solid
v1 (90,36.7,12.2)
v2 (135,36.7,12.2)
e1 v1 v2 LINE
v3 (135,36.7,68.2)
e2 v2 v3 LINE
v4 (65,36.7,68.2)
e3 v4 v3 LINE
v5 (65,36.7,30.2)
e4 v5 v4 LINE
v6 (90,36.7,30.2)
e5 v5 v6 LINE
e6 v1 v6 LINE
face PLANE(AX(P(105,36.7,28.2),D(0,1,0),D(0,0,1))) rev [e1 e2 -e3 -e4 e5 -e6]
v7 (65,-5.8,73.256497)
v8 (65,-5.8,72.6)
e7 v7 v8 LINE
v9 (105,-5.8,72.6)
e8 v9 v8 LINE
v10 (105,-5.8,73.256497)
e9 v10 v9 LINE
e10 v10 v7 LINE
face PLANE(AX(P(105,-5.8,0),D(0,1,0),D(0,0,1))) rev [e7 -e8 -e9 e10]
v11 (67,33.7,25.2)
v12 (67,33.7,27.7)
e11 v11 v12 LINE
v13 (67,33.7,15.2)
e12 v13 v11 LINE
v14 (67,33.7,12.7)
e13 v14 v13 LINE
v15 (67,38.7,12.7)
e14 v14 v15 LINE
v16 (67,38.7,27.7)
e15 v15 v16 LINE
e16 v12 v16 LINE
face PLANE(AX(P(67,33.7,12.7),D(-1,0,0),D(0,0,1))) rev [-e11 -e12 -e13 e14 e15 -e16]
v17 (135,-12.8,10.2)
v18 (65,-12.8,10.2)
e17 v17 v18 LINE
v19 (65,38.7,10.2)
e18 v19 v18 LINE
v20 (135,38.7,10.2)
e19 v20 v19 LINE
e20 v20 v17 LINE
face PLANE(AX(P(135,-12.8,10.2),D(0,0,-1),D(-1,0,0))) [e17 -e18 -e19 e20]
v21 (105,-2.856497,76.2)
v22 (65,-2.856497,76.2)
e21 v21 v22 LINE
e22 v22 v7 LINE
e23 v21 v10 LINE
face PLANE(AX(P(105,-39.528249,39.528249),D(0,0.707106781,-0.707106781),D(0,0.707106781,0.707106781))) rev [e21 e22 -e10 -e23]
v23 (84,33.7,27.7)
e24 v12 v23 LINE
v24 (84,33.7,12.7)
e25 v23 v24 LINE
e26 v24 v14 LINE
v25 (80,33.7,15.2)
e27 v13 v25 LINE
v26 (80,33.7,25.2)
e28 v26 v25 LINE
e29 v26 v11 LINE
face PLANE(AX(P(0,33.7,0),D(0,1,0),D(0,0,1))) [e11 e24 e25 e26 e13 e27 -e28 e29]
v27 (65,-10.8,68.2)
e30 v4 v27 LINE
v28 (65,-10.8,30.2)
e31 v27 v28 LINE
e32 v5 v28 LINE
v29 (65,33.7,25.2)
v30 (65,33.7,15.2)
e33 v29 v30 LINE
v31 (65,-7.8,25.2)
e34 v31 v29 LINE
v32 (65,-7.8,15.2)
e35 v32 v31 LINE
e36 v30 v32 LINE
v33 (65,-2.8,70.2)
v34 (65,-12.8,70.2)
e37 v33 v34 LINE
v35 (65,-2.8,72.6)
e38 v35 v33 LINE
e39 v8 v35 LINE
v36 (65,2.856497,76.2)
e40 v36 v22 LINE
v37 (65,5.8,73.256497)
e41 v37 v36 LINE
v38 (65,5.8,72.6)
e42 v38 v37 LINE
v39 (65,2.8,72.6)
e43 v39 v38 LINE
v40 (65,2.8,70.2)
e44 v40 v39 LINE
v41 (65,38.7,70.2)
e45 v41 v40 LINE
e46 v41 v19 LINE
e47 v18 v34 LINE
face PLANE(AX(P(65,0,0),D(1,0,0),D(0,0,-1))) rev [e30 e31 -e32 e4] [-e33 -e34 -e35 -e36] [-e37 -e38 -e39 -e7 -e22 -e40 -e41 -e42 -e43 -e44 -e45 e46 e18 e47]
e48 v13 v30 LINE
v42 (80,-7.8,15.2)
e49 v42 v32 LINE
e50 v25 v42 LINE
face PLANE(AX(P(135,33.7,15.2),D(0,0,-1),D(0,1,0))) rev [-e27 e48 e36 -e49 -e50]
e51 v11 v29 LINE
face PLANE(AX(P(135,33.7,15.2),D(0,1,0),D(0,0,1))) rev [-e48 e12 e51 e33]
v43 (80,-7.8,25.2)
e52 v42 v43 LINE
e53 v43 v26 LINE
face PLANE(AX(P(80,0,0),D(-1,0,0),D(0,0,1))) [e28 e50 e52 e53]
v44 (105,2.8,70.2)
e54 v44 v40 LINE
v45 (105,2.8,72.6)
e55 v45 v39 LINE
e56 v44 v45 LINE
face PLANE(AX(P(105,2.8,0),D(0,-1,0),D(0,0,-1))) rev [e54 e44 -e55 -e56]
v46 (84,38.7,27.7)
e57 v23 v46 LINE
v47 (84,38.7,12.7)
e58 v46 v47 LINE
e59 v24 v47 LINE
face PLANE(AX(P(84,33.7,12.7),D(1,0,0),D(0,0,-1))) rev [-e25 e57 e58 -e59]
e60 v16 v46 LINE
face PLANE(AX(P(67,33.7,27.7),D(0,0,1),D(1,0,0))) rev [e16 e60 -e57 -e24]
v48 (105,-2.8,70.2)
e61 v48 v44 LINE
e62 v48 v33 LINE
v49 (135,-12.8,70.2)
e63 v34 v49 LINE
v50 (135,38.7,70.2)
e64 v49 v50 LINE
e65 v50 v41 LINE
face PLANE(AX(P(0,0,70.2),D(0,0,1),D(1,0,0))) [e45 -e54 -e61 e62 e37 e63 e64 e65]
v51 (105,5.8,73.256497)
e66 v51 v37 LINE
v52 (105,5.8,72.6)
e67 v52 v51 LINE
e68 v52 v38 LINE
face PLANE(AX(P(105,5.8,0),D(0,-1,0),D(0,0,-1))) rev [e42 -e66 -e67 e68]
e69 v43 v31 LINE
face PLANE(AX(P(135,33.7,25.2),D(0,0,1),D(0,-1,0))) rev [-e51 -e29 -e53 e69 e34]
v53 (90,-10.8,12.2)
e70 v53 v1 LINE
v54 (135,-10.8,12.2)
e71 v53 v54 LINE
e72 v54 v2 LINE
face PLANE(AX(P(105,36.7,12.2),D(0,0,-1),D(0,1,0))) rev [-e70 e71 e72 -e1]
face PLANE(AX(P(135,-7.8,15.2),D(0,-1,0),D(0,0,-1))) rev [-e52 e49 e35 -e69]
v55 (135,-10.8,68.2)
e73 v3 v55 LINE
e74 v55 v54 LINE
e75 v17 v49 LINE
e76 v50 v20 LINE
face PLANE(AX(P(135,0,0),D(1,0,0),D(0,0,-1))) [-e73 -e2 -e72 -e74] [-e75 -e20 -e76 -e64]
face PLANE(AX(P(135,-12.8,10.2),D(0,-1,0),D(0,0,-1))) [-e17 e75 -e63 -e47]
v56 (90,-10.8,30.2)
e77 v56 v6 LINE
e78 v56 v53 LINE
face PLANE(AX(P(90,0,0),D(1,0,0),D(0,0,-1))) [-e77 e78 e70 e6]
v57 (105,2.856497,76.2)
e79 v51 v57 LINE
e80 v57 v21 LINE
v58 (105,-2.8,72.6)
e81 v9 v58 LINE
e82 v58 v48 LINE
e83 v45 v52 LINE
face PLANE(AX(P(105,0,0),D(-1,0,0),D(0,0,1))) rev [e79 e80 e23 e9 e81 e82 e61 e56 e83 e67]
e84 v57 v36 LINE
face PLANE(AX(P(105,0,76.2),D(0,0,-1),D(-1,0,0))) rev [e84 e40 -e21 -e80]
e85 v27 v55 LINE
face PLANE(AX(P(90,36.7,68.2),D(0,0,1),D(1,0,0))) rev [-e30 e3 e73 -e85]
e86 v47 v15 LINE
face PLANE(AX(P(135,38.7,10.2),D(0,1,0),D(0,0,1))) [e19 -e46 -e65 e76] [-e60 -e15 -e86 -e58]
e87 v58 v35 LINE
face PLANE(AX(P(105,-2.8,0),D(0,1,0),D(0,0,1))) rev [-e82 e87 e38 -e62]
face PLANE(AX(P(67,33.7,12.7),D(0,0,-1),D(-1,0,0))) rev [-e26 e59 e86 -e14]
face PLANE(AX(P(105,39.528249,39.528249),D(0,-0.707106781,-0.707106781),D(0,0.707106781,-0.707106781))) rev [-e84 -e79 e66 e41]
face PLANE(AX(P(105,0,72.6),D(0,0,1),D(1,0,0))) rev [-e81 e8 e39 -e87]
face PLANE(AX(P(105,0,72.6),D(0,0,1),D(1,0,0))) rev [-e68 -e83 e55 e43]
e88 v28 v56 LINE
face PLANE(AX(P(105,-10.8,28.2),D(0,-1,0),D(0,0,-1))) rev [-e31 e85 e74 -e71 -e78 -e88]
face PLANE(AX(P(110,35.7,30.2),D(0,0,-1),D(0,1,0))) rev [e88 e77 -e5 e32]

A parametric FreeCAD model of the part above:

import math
import FreeCAD as App
import Part
import Sketcher
from FreeCAD import Vector


def add_polygon(sketch, points):
    """Adds a closed chain of lines whose ends are joined by coincident constraints."""
    first, n = sketch.GeometryCount, len(points)
    for a, b in zip(points, points[1:] + points[:1]):
        sketch.addGeometry(Part.LineSegment(App.Vector(*a, 0), App.Vector(*b, 0)), False)
    for i in range(n):
        sketch.addConstraint(Sketcher.Constraint("Coincident", first + i, 2, first + (i + 1) % n, 1))

doc = App.newDocument("Part")
params = doc.addObject("Spreadsheet::Sheet", "Params")
for row, (alias, value) in enumerate([
    ("sketch1_radius", "1 mm"),
    ("sketch1_diameter", "4.2 mm"),
    ("sketch1_width", "6 mm"),
    ("sketch1_width2", "3 mm"),
    ("sketch1_width3", "2 mm"),
    ("pad1_length", "65 mm"),
    ("sketch3_width", "3 mm"),
    ("sketch3_width2", "5.6 mm"),
    ("sketch3_height", "2.4 mm"),
    ("pad2_length", "40 mm"),
    ("sketch4_height", "20 mm"),
    ("sketch4_height2", "10 mm"),
    ("sketch4_width", "51.5 mm"),
    ("sketch4_width2", "41.5 mm"),
    ("pad3_length", "70 mm"),
    ("sketch5_width", "17 mm"),
    ("sketch5_height", "15 mm"),
    ("pocket2_length", "5 mm"),
    ("sketch6_height", "20 mm"),
    ("sketch6_width", "51.5 mm"),
    ("pad4_length", "50 mm"),
    ("sketch7_height", "10 mm"),
    ("sketch7_width", "41.5 mm"),
    ("pad5_length", "5 mm"),
    ("sketch8_height", "16 mm"),
    ("sketch8_width", "47.5 mm"),
    ("pocket3_length", "30 mm"),
    ("sketch9_width", "70 mm"),
    ("sketch9_height", "51.5 mm"),
    ("pad6_length", "40 mm"),
    ("sketch10_width", "3 mm"),
    ("sketch10_width2", "5.6 mm"),
    ("sketch10_height", "2.4 mm"),
    ("pad7_length", "40 mm"),
    ("pocket4_length", "40 mm"),
    ("sketch12_height", "56 mm"),
    ("sketch12_width", "47.5 mm"),
    ("pocket5_length", "45 mm"),
    ("sketch13_height", "37 mm"),
    ("sketch13_width", "45.5 mm"),
    ("pocket6_length", "45 mm"),
    ("sketch14_height", "38 mm"),
    ("sketch14_width", "47.5 mm"),
    ("pocket7_length", "45 mm"),
], start=1):
    params.set(f"A{row}", alias)
    params.set(f"B{row}", "=" + value)
    params.setAlias(f"B{row}", alias)

body = doc.addObject("PartDesign::Body", "Body")

sketch1 = doc.addObject("Sketcher::SketchObject", "Sketch")
body.addObject(sketch1)
sketch1.AttachmentSupport = (doc.YZ_Plane, [""])
sketch1.MapMode = "FlatFace"
sketch1.addGeometry(Part.LineSegment(Vector(9, 10, 0), Vector(3, 10, 0)), False)
sketch1.addGeometry(Part.LineSegment(Vector(3, 10, 0), Vector(3, 8, 0)), False)
sketch1.addGeometry(Part.LineSegment(Vector(3, 8, 0), Vector(6, 8, 0)), False)
sketch1.addGeometry(Part.LineSegment(Vector(6, 8, 0), Vector(6, 7.06066, 0)), False)
sketch1.addGeometry(Part.LineSegment(Vector(6, 7.06066, 0), Vector(2.93934, 4, 0)), False)
sketch1.addGeometry(Part.LineSegment(Vector(2.93934, 4, 0), Vector(-2.93934, 4, 0)), False)
sketch1.addGeometry(Part.LineSegment(Vector(-2.93934, 4, 0), Vector(-6, 7.06066, 0)), False)
sketch1.addGeometry(Part.LineSegment(Vector(-6, 7.06066, 0), Vector(-6, 8, 0)), False)
sketch1.addGeometry(Part.LineSegment(Vector(-6, 8, 0), Vector(-3, 8, 0)), False)
sketch1.addGeometry(Part.LineSegment(Vector(-3, 8, 0), Vector(-3, 10, 0)), False)
sketch1.addGeometry(Part.LineSegment(Vector(-3, 10, 0), Vector(-9, 10, 0)), False)
sketch1.addGeometry(Part.ArcOfCircle(Part.Circle(Vector(-9, 9, 0), Vector(0, 0, 1), 1), math.radians(90), math.radians(180)), False)
sketch1.addGeometry(Part.LineSegment(Vector(-10, 9, 0), Vector(-10, 3, 0)), False)
sketch1.addGeometry(Part.LineSegment(Vector(-10, 3, 0), Vector(-8, 3, 0)), False)
sketch1.addGeometry(Part.LineSegment(Vector(-8, 3, 0), Vector(-8, 6, 0)), False)
sketch1.addGeometry(Part.LineSegment(Vector(-8, 6, 0), Vector(-7.06066, 6, 0)), False)
sketch1.addGeometry(Part.LineSegment(Vector(-7.06066, 6, 0), Vector(-4, 2.93934, 0)), False)
sketch1.addGeometry(Part.LineSegment(Vector(-4, 2.93934, 0), Vector(-4, -2.93934, 0)), False)
sketch1.addGeometry(Part.LineSegment(Vector(-4, -2.93934, 0), Vector(-7.06066, -6, 0)), False)
sketch1.addGeometry(Part.LineSegment(Vector(-7.06066, -6, 0), Vector(-8, -6, 0)), False)
sketch1.addGeometry(Part.LineSegment(Vector(-8, -6, 0), Vector(-8, -3, 0)), False)
sketch1.addGeometry(Part.LineSegment(Vector(-8, -3, 0), Vector(-10, -3, 0)), False)
sketch1.addGeometry(Part.LineSegment(Vector(-10, -3, 0), Vector(-10, -9, 0)), False)
sketch1.addGeometry(Part.ArcOfCircle(Part.Circle(Vector(-9, -9, 0), Vector(0, 0, 1), 1), math.radians(-180), math.radians(-90)), False)
sketch1.addGeometry(Part.LineSegment(Vector(-9, -10, 0), Vector(-3, -10, 0)), False)
sketch1.addGeometry(Part.LineSegment(Vector(-3, -10, 0), Vector(-3, -8, 0)), False)
sketch1.addGeometry(Part.LineSegment(Vector(-3, -8, 0), Vector(-6, -8, 0)), False)
sketch1.addGeometry(Part.LineSegment(Vector(-6, -8, 0), Vector(-6, -7.06066, 0)), False)
sketch1.addGeometry(Part.LineSegment(Vector(-6, -7.06066, 0), Vector(-2.93934, -4, 0)), False)
sketch1.addGeometry(Part.LineSegment(Vector(-2.93934, -4, 0), Vector(2.93934, -4, 0)), False)
sketch1.addGeometry(Part.LineSegment(Vector(2.93934, -4, 0), Vector(6, -7.06066, 0)), False)
sketch1.addGeometry(Part.LineSegment(Vector(6, -7.06066, 0), Vector(6, -8, 0)), False)
sketch1.addGeometry(Part.LineSegment(Vector(6, -8, 0), Vector(3, -8, 0)), False)
sketch1.addGeometry(Part.LineSegment(Vector(3, -8, 0), Vector(3, -10, 0)), False)
sketch1.addGeometry(Part.LineSegment(Vector(3, -10, 0), Vector(9, -10, 0)), False)
sketch1.addGeometry(Part.ArcOfCircle(Part.Circle(Vector(9, -9, 0), Vector(0, 0, 1), 1), math.radians(-90), math.radians(0)), False)
sketch1.addGeometry(Part.LineSegment(Vector(10, -9, 0), Vector(10, -3, 0)), False)
sketch1.addGeometry(Part.LineSegment(Vector(10, -3, 0), Vector(8, -3, 0)), False)
sketch1.addGeometry(Part.LineSegment(Vector(8, -3, 0), Vector(8, -6, 0)), False)
sketch1.addGeometry(Part.LineSegment(Vector(8, -6, 0), Vector(7.06066, -6, 0)), False)
sketch1.addGeometry(Part.LineSegment(Vector(7.06066, -6, 0), Vector(4, -2.93934, 0)), False)
sketch1.addGeometry(Part.LineSegment(Vector(4, -2.93934, 0), Vector(4, 2.93934, 0)), False)
sketch1.addGeometry(Part.LineSegment(Vector(4, 2.93934, 0), Vector(7.06066, 6, 0)), False)
sketch1.addGeometry(Part.LineSegment(Vector(7.06066, 6, 0), Vector(8, 6, 0)), False)
sketch1.addGeometry(Part.LineSegment(Vector(8, 6, 0), Vector(8, 3, 0)), False)
sketch1.addGeometry(Part.LineSegment(Vector(8, 3, 0), Vector(10, 3, 0)), False)
sketch1.addGeometry(Part.LineSegment(Vector(10, 3, 0), Vector(10, 9, 0)), False)
sketch1.addGeometry(Part.ArcOfCircle(Part.Circle(Vector(9, 9, 0), Vector(0, 0, 1), 1), math.radians(0), math.radians(90)), False)
sketch1.addGeometry(Part.Circle(Vector(0, 0, 0), Vector(0, 0, 1), 2.1), False)
sketch1.addConstraint(Sketcher.Constraint("Coincident", 0, 2, 1, 1))
sketch1.addConstraint(Sketcher.Constraint("Coincident", 1, 2, 2, 1))
sketch1.addConstraint(Sketcher.Constraint("Coincident", 2, 2, 3, 1))
sketch1.addConstraint(Sketcher.Constraint("Coincident", 3, 2, 4, 1))
sketch1.addConstraint(Sketcher.Constraint("Coincident", 4, 2, 5, 1))
sketch1.addConstraint(Sketcher.Constraint("Coincident", 5, 2, 6, 1))
sketch1.addConstraint(Sketcher.Constraint("Coincident", 6, 2, 7, 1))
sketch1.addConstraint(Sketcher.Constraint("Coincident", 7, 2, 8, 1))
sketch1.addConstraint(Sketcher.Constraint("Coincident", 8, 2, 9, 1))
sketch1.addConstraint(Sketcher.Constraint("Coincident", 9, 2, 10, 1))
sketch1.addConstraint(Sketcher.Constraint("Tangent", 10, 2, 11, 1))
sketch1.addConstraint(Sketcher.Constraint("Tangent", 11, 2, 12, 1))
sketch1.addConstraint(Sketcher.Constraint("Coincident", 12, 2, 13, 1))
sketch1.addConstraint(Sketcher.Constraint("Coincident", 13, 2, 14, 1))
sketch1.addConstraint(Sketcher.Constraint("Coincident", 14, 2, 15, 1))
sketch1.addConstraint(Sketcher.Constraint("Coincident", 15, 2, 16, 1))
sketch1.addConstraint(Sketcher.Constraint("Coincident", 16, 2, 17, 1))
sketch1.addConstraint(Sketcher.Constraint("Coincident", 17, 2, 18, 1))
sketch1.addConstraint(Sketcher.Constraint("Coincident", 18, 2, 19, 1))
sketch1.addConstraint(Sketcher.Constraint("Coincident", 19, 2, 20, 1))
sketch1.addConstraint(Sketcher.Constraint("Coincident", 20, 2, 21, 1))
sketch1.addConstraint(Sketcher.Constraint("Coincident", 21, 2, 22, 1))
sketch1.addConstraint(Sketcher.Constraint("Tangent", 22, 2, 23, 1))
sketch1.addConstraint(Sketcher.Constraint("Tangent", 23, 2, 24, 1))
sketch1.addConstraint(Sketcher.Constraint("Coincident", 24, 2, 25, 1))
sketch1.addConstraint(Sketcher.Constraint("Coincident", 25, 2, 26, 1))
sketch1.addConstraint(Sketcher.Constraint("Coincident", 26, 2, 27, 1))
sketch1.addConstraint(Sketcher.Constraint("Coincident", 27, 2, 28, 1))
sketch1.addConstraint(Sketcher.Constraint("Coincident", 28, 2, 29, 1))
sketch1.addConstraint(Sketcher.Constraint("Coincident", 29, 2, 30, 1))
sketch1.addConstraint(Sketcher.Constraint("Coincident", 30, 2, 31, 1))
sketch1.addConstraint(Sketcher.Constraint("Coincident", 31, 2, 32, 1))
sketch1.addConstraint(Sketcher.Constraint("Coincident", 32, 2, 33, 1))
sketch1.addConstraint(Sketcher.Constraint("Coincident", 33, 2, 34, 1))
sketch1.addConstraint(Sketcher.Constraint("Tangent", 34, 2, 35, 1))
sketch1.addConstraint(Sketcher.Constraint("Tangent", 35, 2, 36, 1))
sketch1.addConstraint(Sketcher.Constraint("Coincident", 36, 2, 37, 1))
sketch1.addConstraint(Sketcher.Constraint("Coincident", 37, 2, 38, 1))
sketch1.addConstraint(Sketcher.Constraint("Coincident", 38, 2, 39, 1))
sketch1.addConstraint(Sketcher.Constraint("Coincident", 39, 2, 40, 1))
sketch1.addConstraint(Sketcher.Constraint("Coincident", 40, 2, 41, 1))
sketch1.addConstraint(Sketcher.Constraint("Coincident", 41, 2, 42, 1))
sketch1.addConstraint(Sketcher.Constraint("Coincident", 42, 2, 43, 1))
sketch1.addConstraint(Sketcher.Constraint("Coincident", 43, 2, 44, 1))
sketch1.addConstraint(Sketcher.Constraint("Coincident", 44, 2, 45, 1))
sketch1.addConstraint(Sketcher.Constraint("Coincident", 45, 2, 46, 1))
sketch1.addConstraint(Sketcher.Constraint("Tangent", 46, 2, 47, 1))
sketch1.addConstraint(Sketcher.Constraint("Tangent", 47, 2, 0, 1))
sketch1.addConstraint(Sketcher.Constraint("Horizontal", 0))
sketch1.addConstraint(Sketcher.Constraint("Vertical", 1))
sketch1.addConstraint(Sketcher.Constraint("Horizontal", 2))
sketch1.addConstraint(Sketcher.Constraint("Vertical", 3))
sketch1.addConstraint(Sketcher.Constraint("Horizontal", 5))
sketch1.addConstraint(Sketcher.Constraint("Vertical", 7))
sketch1.addConstraint(Sketcher.Constraint("Horizontal", 8))
sketch1.addConstraint(Sketcher.Constraint("Vertical", 9))
sketch1.addConstraint(Sketcher.Constraint("Horizontal", 10))
sketch1.addConstraint(Sketcher.Constraint("Vertical", 12))
sketch1.addConstraint(Sketcher.Constraint("Horizontal", 13))
sketch1.addConstraint(Sketcher.Constraint("Vertical", 14))
sketch1.addConstraint(Sketcher.Constraint("Horizontal", 15))
sketch1.addConstraint(Sketcher.Constraint("Vertical", 17))
sketch1.addConstraint(Sketcher.Constraint("Horizontal", 19))
sketch1.addConstraint(Sketcher.Constraint("Vertical", 20))
sketch1.addConstraint(Sketcher.Constraint("Horizontal", 21))
sketch1.addConstraint(Sketcher.Constraint("Vertical", 22))
sketch1.addConstraint(Sketcher.Constraint("Horizontal", 24))
sketch1.addConstraint(Sketcher.Constraint("Vertical", 25))
sketch1.addConstraint(Sketcher.Constraint("Horizontal", 26))
sketch1.addConstraint(Sketcher.Constraint("Vertical", 27))
sketch1.addConstraint(Sketcher.Constraint("Horizontal", 29))
sketch1.addConstraint(Sketcher.Constraint("Vertical", 31))
sketch1.addConstraint(Sketcher.Constraint("Horizontal", 32))
sketch1.addConstraint(Sketcher.Constraint("Vertical", 33))
sketch1.addConstraint(Sketcher.Constraint("Horizontal", 34))
sketch1.addConstraint(Sketcher.Constraint("Vertical", 36))
sketch1.addConstraint(Sketcher.Constraint("Horizontal", 37))
sketch1.addConstraint(Sketcher.Constraint("Vertical", 38))
sketch1.addConstraint(Sketcher.Constraint("Horizontal", 39))
sketch1.addConstraint(Sketcher.Constraint("Vertical", 41))
sketch1.addConstraint(Sketcher.Constraint("Horizontal", 43))
sketch1.addConstraint(Sketcher.Constraint("Vertical", 44))
sketch1.addConstraint(Sketcher.Constraint("Horizontal", 45))
sketch1.addConstraint(Sketcher.Constraint("Vertical", 46))
sketch1.addConstraint(Sketcher.Constraint("Coincident", 48, 3, -1, 1))
sketch1.addConstraint(Sketcher.Constraint("Equal", 11, 23))
sketch1.addConstraint(Sketcher.Constraint("Equal", 23, 35))
sketch1.addConstraint(Sketcher.Constraint("Equal", 35, 47))
sketch1.addConstraint(Sketcher.Constraint("Symmetric", 11, 3, 35, 3, -1, 1))
sketch1.addConstraint(Sketcher.Constraint("Symmetric", 23, 3, 47, 3, -1, 1))
sketch1.addConstraint(Sketcher.Constraint("Symmetric", 1, 2, 25, 2, -1, 1))
sketch1.addConstraint(Sketcher.Constraint("Symmetric", 3, 2, 27, 2, -1, 1))
sketch1.addConstraint(Sketcher.Constraint("Symmetric", 4, 2, 28, 2, -1, 1))
sketch1.addConstraint(Sketcher.Constraint("Symmetric", 6, 2, 30, 2, -1, 1))
sketch1.addConstraint(Sketcher.Constraint("Symmetric", 8, 2, 32, 2, -1, 1))
sketch1.addConstraint(Sketcher.Constraint("Symmetric", 13, 2, 37, 2, -1, 1))
sketch1.addConstraint(Sketcher.Constraint("Symmetric", 15, 2, 39, 2, -1, 1))
sketch1.addConstraint(Sketcher.Constraint("Symmetric", 16, 2, 40, 2, -1, 1))
sketch1.addConstraint(Sketcher.Constraint("Symmetric", 18, 2, 42, 2, -1, 1))
sketch1.addConstraint(Sketcher.Constraint("Symmetric", 20, 2, 44, 2, -1, 1))
sketch1.addConstraint(Sketcher.Constraint("Symmetric", 23, 3, 35, 3, -2))
sketch1.addConstraint(Sketcher.Constraint("Symmetric", 3, 2, 6, 2, -2))
sketch1.addConstraint(Sketcher.Constraint("Symmetric", 1, 2, 8, 2, -2))
sketch1.addConstraint(Sketcher.Constraint("Symmetric", 20, 2, 37, 2, -2))
sketch1.addConstraint(Sketcher.Constraint("Symmetric", 18, 2, 39, 2, -2))
sketch1.addConstraint(Sketcher.Constraint("Perpendicular", 4, 6))
sketch1.addConstraint(Sketcher.Constraint("Parallel", 6, 16))
sketch1.addConstraint(Sketcher.Constraint("Perpendicular", 16, 18))
sketch1.addConstraint(Sketcher.Constraint("Perpendicular", 28, 30))
sketch1.addConstraint(Sketcher.Constraint("Perpendicular", 40, 42))
sketch1.addConstraint(Sketcher.Constraint("Horizontal", 17, 2, 40, 2))
sketch1.addConstraint(Sketcher.Constraint("Equal", 45, 1))
sketch1.addConstraint(Sketcher.Constraint("Equal", 43, 3))
sketch1.addConstraint(Sketcher.Constraint("Equal", 34, 12))
sketch1.addConstraint(Sketcher.Constraint("Equal", 32, 14))
sketch1.addConstraint(Sketcher.Constraint("Equal", 29, 17))
sketch1.addConstraint(Sketcher.Constraint("Equal", 6, 16))
sketch1.addConstraint(Sketcher.Constraint("Radius", 11, 1.0))
sketch1.addConstraint(Sketcher.Constraint("Diameter", 48, 4.2))
sketch1.addConstraint(Sketcher.Constraint("DistanceX", 0, 2, 0, 1, 6.0))
sketch1.addConstraint(Sketcher.Constraint("DistanceX", 2, 1, 2, 2, 3.0))
sketch1.addConstraint(Sketcher.Constraint("DistanceX", 13, 1, 13, 2, 2.0))
sketch1.addConstraint(Sketcher.Constraint("DistanceX", 11, 3, -1, 1, 9.0))
sketch1.addConstraint(Sketcher.Constraint("DistanceY", -1, 1, 4, 2, 4.0))
sketch1.addConstraint(Sketcher.Constraint("DistanceX", 5, 2, 5, 1, 5.87868))
sketch1.setExpression("Constraints[117]", "Params.sketch1_radius")
sketch1.setExpression("Constraints[118]", "Params.sketch1_diameter")
sketch1.setExpression("Constraints[119]", "Params.sketch1_width")
sketch1.setExpression("Constraints[120]", "Params.sketch1_width2")
sketch1.setExpression("Constraints[121]", "Params.sketch1_width3")
pad1 = doc.addObject("PartDesign::Pad", "Pad")
body.addObject(pad1)
pad1.Profile = sketch1
pad1.setExpression("Length", "Params.pad1_length")

sketch2 = doc.addObject("Sketcher::SketchObject", "Sketch001")
body.addObject(sketch2)
sketch2.AttachmentSupport = (doc.YZ_Plane, [""])
sketch2.MapMode = "FlatFace"
sketch2.AttachmentOffset = App.Placement(Vector(0, 0, 65), App.Rotation())
add_polygon(sketch2, [(10.51567, 10.787122), (-11.001449, 10.787122), (-11.001449, -10.958599), (10.51567, -10.958599)])
sketch2.addConstraint(Sketcher.Constraint("Horizontal", 0))
sketch2.addConstraint(Sketcher.Constraint("Vertical", 1))
sketch2.addConstraint(Sketcher.Constraint("Horizontal", 2))
sketch2.addConstraint(Sketcher.Constraint("Vertical", 3))
sketch2.addConstraint(Sketcher.Constraint("DistanceX", 0, 2, 0, 1, 21.517119))
sketch2.addConstraint(Sketcher.Constraint("DistanceY", 1, 2, 1, 1, 21.745721))
sketch2.addConstraint(Sketcher.Constraint("DistanceY", 1, 2, -1, 1, 10.958599))
sketch2.addConstraint(Sketcher.Constraint("DistanceX", 0, 2, -1, 1, 11.001449))
pocket1 = doc.addObject("PartDesign::Pocket", "Pocket")
body.addObject(pocket1)
pocket1.Profile = sketch2
pocket1.Type = "ThroughAll"
body2 = doc.addObject("PartDesign::Body", "Body001")

sketch3 = doc.addObject("Sketcher::SketchObject", "Sketch002")
body2.addObject(sketch3)
sketch3.AttachmentSupport = (doc.getObject("YZ_Plane001"), [""])
sketch3.MapMode = "FlatFace"
sketch3.AttachmentOffset = App.Placement(Vector(0, 0, 65), App.Rotation())
add_polygon(sketch3, [(2.8, 10.2), (-2.8, 10.2), (-2.8, 7.8), (-5.8, 7.8), (-5.8, 7.143503), (-2.856497, 4.2), (2.856497, 4.2), (5.8, 7.143503), (5.8, 7.8), (2.8, 7.8)])
sketch3.addConstraint(Sketcher.Constraint("Horizontal", 0))
sketch3.addConstraint(Sketcher.Constraint("Vertical", 1))
sketch3.addConstraint(Sketcher.Constraint("Horizontal", 2))
sketch3.addConstraint(Sketcher.Constraint("Vertical", 3))
sketch3.addConstraint(Sketcher.Constraint("Horizontal", 5))
sketch3.addConstraint(Sketcher.Constraint("Vertical", 7))
sketch3.addConstraint(Sketcher.Constraint("Horizontal", 8))
sketch3.addConstraint(Sketcher.Constraint("Vertical", 9))
sketch3.addConstraint(Sketcher.Constraint("Symmetric", 3, 2, 6, 2, -2))
sketch3.addConstraint(Sketcher.Constraint("Symmetric", 1, 2, 8, 2, -2))
sketch3.addConstraint(Sketcher.Constraint("Perpendicular", 4, 6))
sketch3.addConstraint(Sketcher.Constraint("Equal", 4, 6))
sketch3.addConstraint(Sketcher.Constraint("DistanceX", 2, 2, 2, 1, 3.0))
sketch3.addConstraint(Sketcher.Constraint("DistanceX", 0, 2, 0, 1, 5.6))
sketch3.addConstraint(Sketcher.Constraint("DistanceY", 1, 2, 1, 1, 2.4))
sketch3.addConstraint(Sketcher.Constraint("DistanceY", 4, 2, 0, 2, 6.0))
sketch3.addConstraint(Sketcher.Constraint("DistanceY", -1, 1, 0, 2, 10.2))
sketch3.addConstraint(Sketcher.Constraint("Distance", 4, 4.162742))
sketch3.setExpression("Constraints[22]", "Params.sketch3_width")
sketch3.setExpression("Constraints[23]", "Params.sketch3_width2")
sketch3.setExpression("Constraints[24]", "Params.sketch3_height")
pad2 = doc.addObject("PartDesign::Pad", "Pad001")
body2.addObject(pad2)
pad2.Profile = sketch3
pad2.setExpression("Length", "Params.pad2_length")

sketch4 = doc.addObject("Sketcher::SketchObject", "Sketch003")
body2.addObject(sketch4)
sketch4.AttachmentSupport = (doc.getObject("YZ_Plane001"), [""])
sketch4.MapMode = "FlatFace"
sketch4.AttachmentOffset = App.Placement(Vector(0, 0, 65), App.Rotation())
add_polygon(sketch4, [(38.7, 10.2), (-12.8, 10.2), (-12.8, 30.2), (38.7, 30.2)])
add_polygon(sketch4, [(-7.8, 25.2), (-7.8, 15.2), (33.7, 15.2), (33.7, 25.2)])
sketch4.addConstraint(Sketcher.Constraint("Horizontal", 0))
sketch4.addConstraint(Sketcher.Constraint("Vertical", 1))
sketch4.addConstraint(Sketcher.Constraint("Horizontal", 2))
sketch4.addConstraint(Sketcher.Constraint("Vertical", 3))
sketch4.addConstraint(Sketcher.Constraint("Vertical", 4))
sketch4.addConstraint(Sketcher.Constraint("Horizontal", 5))
sketch4.addConstraint(Sketcher.Constraint("Vertical", 6))
sketch4.addConstraint(Sketcher.Constraint("Horizontal", 7))
sketch4.addConstraint(Sketcher.Constraint("DistanceY", 1, 1, 1, 2, 20.0))
sketch4.addConstraint(Sketcher.Constraint("DistanceY", 4, 2, 4, 1, 10.0))
sketch4.addConstraint(Sketcher.Constraint("DistanceX", 0, 2, 0, 1, 51.5))
sketch4.addConstraint(Sketcher.Constraint("DistanceX", 5, 1, 5, 2, 41.5))
sketch4.addConstraint(Sketcher.Constraint("DistanceX", 0, 2, 4, 2, 5.0))
sketch4.addConstraint(Sketcher.Constraint("DistanceY", 0, 2, 4, 2, 5.0))
sketch4.addConstraint(Sketcher.Constraint("DistanceX", 0, 2, -1, 1, 12.8))
sketch4.addConstraint(Sketcher.Constraint("DistanceY", -1, 1, 0, 2, 10.2))
sketch4.setExpression("Constraints[16]", "Params.sketch4_height")
sketch4.setExpression("Constraints[17]", "Params.sketch4_height2")
sketch4.setExpression("Constraints[18]", "Params.sketch4_width")
sketch4.setExpression("Constraints[19]", "Params.sketch4_width2")
pad3 = doc.addObject("PartDesign::Pad", "Pad002")
body2.addObject(pad3)
pad3.Profile = sketch4
pad3.setExpression("Length", "Params.pad3_length")

sketch5 = doc.addObject("Sketcher::SketchObject", "Sketch004")
body2.addObject(sketch5)
sketch5.AttachmentSupport = (doc.getObject("XZ_Plane001"), [""])
sketch5.MapMode = "FlatFace"
sketch5.AttachmentOffset = App.Placement(Vector(0, 0, -38.7), App.Rotation())
add_polygon(sketch5, [(67, 12.7), (67, 27.7), (84, 27.7), (84, 12.7)])
sketch5.addConstraint(Sketcher.Constraint("Vertical", 0))
sketch5.addConstraint(Sketcher.Constraint("Horizontal", 1))
sketch5.addConstraint(Sketcher.Constraint("Vertical", 2))
sketch5.addConstraint(Sketcher.Constraint("Horizontal", 3))
sketch5.addConstraint(Sketcher.Constraint("DistanceX", 1, 1, 1, 2, 17.0))
sketch5.addConstraint(Sketcher.Constraint("DistanceY", 0, 1, 0, 2, 15.0))
sketch5.addConstraint(Sketcher.Constraint("DistanceX", -1, 1, 0, 2, 67.0))
sketch5.addConstraint(Sketcher.Constraint("DistanceY", -1, 1, 0, 2, 27.7))
sketch5.setExpression("Constraints[8]", "Params.sketch5_width")
sketch5.setExpression("Constraints[9]", "Params.sketch5_height")
pocket2 = doc.addObject("PartDesign::Pocket", "Pocket001")
body2.addObject(pocket2)
pocket2.Profile = sketch5
pocket2.setExpression("Length", "Params.pocket2_length")
pocket2.Reversed = True

sketch6 = doc.addObject("Sketcher::SketchObject", "Sketch005")
body2.addObject(sketch6)
sketch6.AttachmentSupport = (doc.getObject("YZ_Plane001"), [""])
sketch6.MapMode = "FlatFace"
sketch6.AttachmentOffset = App.Placement(Vector(0, 0, 135), App.Rotation())
add_polygon(sketch6, [(38.7, 30.2), (-12.8, 30.2), (-12.8, 10.2), (38.7, 10.2)])
sketch6.addConstraint(Sketcher.Constraint("Horizontal", 0))
sketch6.addConstraint(Sketcher.Constraint("Vertical", 1))
sketch6.addConstraint(Sketcher.Constraint("Horizontal", 2))
sketch6.addConstraint(Sketcher.Constraint("Vertical", 3))
sketch6.addConstraint(Sketcher.Constraint("DistanceY", 1, 2, 1, 1, 20.0))
sketch6.addConstraint(Sketcher.Constraint("DistanceX", 0, 2, 0, 1, 51.5))
sketch6.addConstraint(Sketcher.Constraint("DistanceX", 0, 2, -1, 1, 12.8))
sketch6.addConstraint(Sketcher.Constraint("DistanceY", -1, 1, 0, 2, 30.2))
sketch6.setExpression("Constraints[8]", "Params.sketch6_height")
sketch6.setExpression("Constraints[9]", "Params.sketch6_width")
pad4 = doc.addObject("PartDesign::Pad", "Pad003")
body2.addObject(pad4)
pad4.Profile = sketch6
pad4.setExpression("Length", "Params.pad4_length")
pad4.Reversed = True

sketch7 = doc.addObject("Sketcher::SketchObject", "Sketch006")
body2.addObject(sketch7)
sketch7.AttachmentSupport = (doc.getObject("YZ_Plane001"), [""])
sketch7.MapMode = "FlatFace"
sketch7.AttachmentOffset = App.Placement(Vector(0, 0, 85), App.Rotation())
add_polygon(sketch7, [(33.7, 15.2), (-7.8, 15.2), (-7.8, 25.2), (33.7, 25.2)])
sketch7.addConstraint(Sketcher.Constraint("Horizontal", 0))
sketch7.addConstraint(Sketcher.Constraint("Vertical", 1))
sketch7.addConstraint(Sketcher.Constraint("Horizontal", 2))
sketch7.addConstraint(Sketcher.Constraint("Vertical", 3))
sketch7.addConstraint(Sketcher.Constraint("DistanceY", 1, 1, 1, 2, 10.0))
sketch7.addConstraint(Sketcher.Constraint("DistanceX", 0, 2, 0, 1, 41.5))
sketch7.addConstraint(Sketcher.Constraint("DistanceX", 0, 2, -1, 1, 7.8))
sketch7.addConstraint(Sketcher.Constraint("DistanceY", -1, 1, 0, 2, 15.2))
sketch7.setExpression("Constraints[8]", "Params.sketch7_height")
sketch7.setExpression("Constraints[9]", "Params.sketch7_width")
pad5 = doc.addObject("PartDesign::Pad", "Pad004")
body2.addObject(pad5)
pad5.Profile = sketch7
pad5.setExpression("Length", "Params.pad5_length")
pad5.Reversed = True

sketch8 = doc.addObject("Sketcher::SketchObject", "Sketch007")
body2.addObject(sketch8)
sketch8.AttachmentSupport = (doc.getObject("YZ_Plane001"), [""])
sketch8.MapMode = "FlatFace"
sketch8.AttachmentOffset = App.Placement(Vector(0, 0, 135), App.Rotation())
add_polygon(sketch8, [(36.7, 28.2), (-10.8, 28.2), (-10.8, 12.2), (36.7, 12.2)])
sketch8.addConstraint(Sketcher.Constraint("Horizontal", 0))
sketch8.addConstraint(Sketcher.Constraint("Vertical", 1))
sketch8.addConstraint(Sketcher.Constraint("Horizontal", 2))
sketch8.addConstraint(Sketcher.Constraint("Vertical", 3))
sketch8.addConstraint(Sketcher.Constraint("DistanceY", 1, 2, 1, 1, 16.0))
sketch8.addConstraint(Sketcher.Constraint("DistanceX", 0, 2, 0, 1, 47.5))
sketch8.addConstraint(Sketcher.Constraint("DistanceX", 0, 2, -1, 1, 10.8))
sketch8.addConstraint(Sketcher.Constraint("DistanceY", -1, 1, 0, 2, 28.2))
sketch8.setExpression("Constraints[8]", "Params.sketch8_height")
sketch8.setExpression("Constraints[9]", "Params.sketch8_width")
pocket3 = doc.addObject("PartDesign::Pocket", "Pocket002")
body2.addObject(pocket3)
pocket3.Profile = sketch8
pocket3.setExpression("Length", "Params.pocket3_length")

sketch9 = doc.addObject("Sketcher::SketchObject", "Sketch008")
body2.addObject(sketch9)
sketch9.AttachmentSupport = (doc.getObject("XY_Plane001"), [""])
sketch9.MapMode = "FlatFace"
sketch9.AttachmentOffset = App.Placement(Vector(0, 0, 30.2), App.Rotation())
add_polygon(sketch9, [(65, 38.7), (65, -12.8), (135, -12.8), (135, 38.7)])
sketch9.addConstraint(Sketcher.Constraint("Vertical", 0))
sketch9.addConstraint(Sketcher.Constraint("Horizontal", 1))
sketch9.addConstraint(Sketcher.Constraint("Vertical", 2))
sketch9.addConstraint(Sketcher.Constraint("Horizontal", 3))
sketch9.addConstraint(Sketcher.Constraint("DistanceX", 1, 1, 1, 2, 70.0))
sketch9.addConstraint(Sketcher.Constraint("DistanceY", 0, 2, 0, 1, 51.5))
sketch9.addConstraint(Sketcher.Constraint("DistanceX", -1, 1, 0, 2, 65.0))
sketch9.addConstraint(Sketcher.Constraint("DistanceY", 0, 2, -1, 1, 12.8))
sketch9.setExpression("Constraints[8]", "Params.sketch9_width")
sketch9.setExpression("Constraints[9]", "Params.sketch9_height")
pad6 = doc.addObject("PartDesign::Pad", "Pad005")
body2.addObject(pad6)
pad6.Profile = sketch9
pad6.setExpression("Length", "Params.pad6_length")

sketch10 = doc.addObject("Sketcher::SketchObject", "Sketch009")
body2.addObject(sketch10)
sketch10.AttachmentSupport = (doc.getObject("YZ_Plane001"), [""])
sketch10.MapMode = "FlatFace"
sketch10.AttachmentOffset = App.Placement(Vector(0, 0, 65), App.Rotation())
add_polygon(sketch10, [(2.8, 72.6), (2.8, 70.2), (-2.8, 70.2), (-2.8, 72.6), (-5.8, 72.6), (-5.8, 73.256497), (-2.856497, 76.2), (2.856497, 76.2), (5.8, 73.256497), (5.8, 72.6)])
sketch10.addConstraint(Sketcher.Constraint("Vertical", 0))
sketch10.addConstraint(Sketcher.Constraint("Horizontal", 1))
sketch10.addConstraint(Sketcher.Constraint("Vertical", 2))
sketch10.addConstraint(Sketcher.Constraint("Horizontal", 3))
sketch10.addConstraint(Sketcher.Constraint("Vertical", 4))
sketch10.addConstraint(Sketcher.Constraint("Horizontal", 6))
sketch10.addConstraint(Sketcher.Constraint("Vertical", 8))
sketch10.addConstraint(Sketcher.Constraint("Horizontal", 9))
sketch10.addConstraint(Sketcher.Constraint("Symmetric", 4, 2, 7, 2, -2))
sketch10.addConstraint(Sketcher.Constraint("Symmetric", 2, 2, 9, 2, -2))
sketch10.addConstraint(Sketcher.Constraint("Perpendicular", 5, 7))
sketch10.addConstraint(Sketcher.Constraint("Equal", 5, 7))
sketch10.addConstraint(Sketcher.Constraint("DistanceX", 3, 2, 3, 1, 3.0))
sketch10.addConstraint(Sketcher.Constraint("DistanceX", 1, 2, 1, 1, 5.6))
sketch10.addConstraint(Sketcher.Constraint("DistanceY", 0, 2, 0, 1, 2.4))
sketch10.addConstraint(Sketcher.Constraint("DistanceY", 1, 2, 5, 2, 6.0))
sketch10.addConstraint(Sketcher.Constraint("DistanceY", -1, 1, 0, 2, 70.2))
sketch10.addConstraint(Sketcher.Constraint("Distance", 5, 4.162742))
sketch10.setExpression("Constraints[22]", "Params.sketch10_width")
sketch10.setExpression("Constraints[23]", "Params.sketch10_width2")
sketch10.setExpression("Constraints[24]", "Params.sketch10_height")
pad7 = doc.addObject("PartDesign::Pad", "Pad006")
body2.addObject(pad7)
pad7.Profile = sketch10
pad7.setExpression("Length", "Params.pad7_length")

sketch11 = doc.addObject("Sketcher::SketchObject", "Sketch010")
body2.addObject(sketch11)
sketch11.AttachmentSupport = (doc.getObject("YZ_Plane001"), [""])
sketch11.MapMode = "FlatFace"
sketch11.AttachmentOffset = App.Placement(Vector(0, 0, 65), App.Rotation())
add_polygon(sketch11, [(20.263171, -2.884115), (-10.022895, -2.884115), (-10.022895, 10.2), (20.263171, 10.2)])
sketch11.addConstraint(Sketcher.Constraint("Horizontal", 0))
sketch11.addConstraint(Sketcher.Constraint("Vertical", 1))
sketch11.addConstraint(Sketcher.Constraint("Horizontal", 2))
sketch11.addConstraint(Sketcher.Constraint("Vertical", 3))
sketch11.addConstraint(Sketcher.Constraint("DistanceY", -1, 1, 1, 2, 10.2))
sketch11.addConstraint(Sketcher.Constraint("DistanceX", 0, 2, 0, 1, 30.286066))
sketch11.addConstraint(Sketcher.Constraint("DistanceY", 1, 1, 1, 2, 13.084115))
sketch11.addConstraint(Sketcher.Constraint("DistanceX", -1, 1, 2, 2, 20.263171))
pocket4 = doc.addObject("PartDesign::Pocket", "Pocket003")
body2.addObject(pocket4)
pocket4.Profile = sketch11
pocket4.setExpression("Length", "Params.pocket4_length")
pocket4.Reversed = True

sketch12 = doc.addObject("Sketcher::SketchObject", "Sketch011")
body2.addObject(sketch12)
sketch12.AttachmentSupport = (doc.getObject("YZ_Plane001"), [""])
sketch12.MapMode = "FlatFace"
sketch12.AttachmentOffset = App.Placement(Vector(0, 0, 135), App.Rotation())
add_polygon(sketch12, [(36.7, 68.2), (-10.8, 68.2), (-10.8, 12.2), (36.7, 12.2)])
sketch12.addConstraint(Sketcher.Constraint("Horizontal", 0))
sketch12.addConstraint(Sketcher.Constraint("Vertical", 1))
sketch12.addConstraint(Sketcher.Constraint("Horizontal", 2))
sketch12.addConstraint(Sketcher.Constraint("Vertical", 3))
sketch12.addConstraint(Sketcher.Constraint("DistanceY", 1, 2, 1, 1, 56.0))
sketch12.addConstraint(Sketcher.Constraint("DistanceX", 0, 2, 0, 1, 47.5))
sketch12.addConstraint(Sketcher.Constraint("DistanceX", 0, 2, -1, 1, 10.8))
sketch12.addConstraint(Sketcher.Constraint("DistanceY", -1, 1, 0, 2, 68.2))
sketch12.setExpression("Constraints[8]", "Params.sketch12_height")
sketch12.setExpression("Constraints[9]", "Params.sketch12_width")
pocket5 = doc.addObject("PartDesign::Pocket", "Pocket004")
body2.addObject(pocket5)
pocket5.Profile = sketch12
pocket5.setExpression("Length", "Params.pocket5_length")

sketch13 = doc.addObject("Sketcher::SketchObject", "Sketch012")
body2.addObject(sketch13)
sketch13.AttachmentSupport = (doc.getObject("YZ_Plane001"), [""])
sketch13.MapMode = "FlatFace"
sketch13.AttachmentOffset = App.Placement(Vector(0, 0, 65), App.Rotation())
add_polygon(sketch13, [(35.7, 30.2), (-9.8, 30.2), (-9.8, 67.2), (35.7, 67.2)])
sketch13.addConstraint(Sketcher.Constraint("Horizontal", 0))
sketch13.addConstraint(Sketcher.Constraint("Vertical", 1))
sketch13.addConstraint(Sketcher.Constraint("Horizontal", 2))
sketch13.addConstraint(Sketcher.Constraint("Vertical", 3))
sketch13.addConstraint(Sketcher.Constraint("DistanceY", 1, 1, 1, 2, 37.0))
sketch13.addConstraint(Sketcher.Constraint("DistanceX", 0, 2, 0, 1, 45.5))
sketch13.addConstraint(Sketcher.Constraint("DistanceX", 0, 2, -1, 1, 9.8))
sketch13.addConstraint(Sketcher.Constraint("DistanceY", -1, 1, 0, 2, 30.2))
sketch13.setExpression("Constraints[8]", "Params.sketch13_height")
sketch13.setExpression("Constraints[9]", "Params.sketch13_width")
pocket6 = doc.addObject("PartDesign::Pocket", "Pocket005")
body2.addObject(pocket6)
pocket6.Profile = sketch13
pocket6.setExpression("Length", "Params.pocket6_length")
pocket6.Reversed = True

sketch14 = doc.addObject("Sketcher::SketchObject", "Sketch013")
body2.addObject(sketch14)
sketch14.AttachmentSupport = (doc.getObject("YZ_Plane001"), [""])
sketch14.MapMode = "FlatFace"
sketch14.AttachmentOffset = App.Placement(Vector(0, 0, 90), App.Rotation())
add_polygon(sketch14, [(36.7, 68.2), (-10.8, 68.2), (-10.8, 30.2), (36.7, 30.2)])
sketch14.addConstraint(Sketcher.Constraint("Horizontal", 0))
sketch14.addConstraint(Sketcher.Constraint("Vertical", 1))
sketch14.addConstraint(Sketcher.Constraint("Horizontal", 2))
sketch14.addConstraint(Sketcher.Constraint("Vertical", 3))
sketch14.addConstraint(Sketcher.Constraint("DistanceY", 1, 2, 1, 1, 38.0))
sketch14.addConstraint(Sketcher.Constraint("DistanceX", 0, 2, 0, 1, 47.5))
sketch14.addConstraint(Sketcher.Constraint("DistanceX", 0, 2, -1, 1, 10.8))
sketch14.addConstraint(Sketcher.Constraint("DistanceY", -1, 1, 0, 2, 68.2))
sketch14.setExpression("Constraints[8]", "Params.sketch14_height")
sketch14.setExpression("Constraints[9]", "Params.sketch14_width")
pocket7 = doc.addObject("PartDesign::Pocket", "Pocket006")
body2.addObject(pocket7)
pocket7.Profile = sketch14
pocket7.setExpression("Length", "Params.pocket7_length")

doc.recompute()
